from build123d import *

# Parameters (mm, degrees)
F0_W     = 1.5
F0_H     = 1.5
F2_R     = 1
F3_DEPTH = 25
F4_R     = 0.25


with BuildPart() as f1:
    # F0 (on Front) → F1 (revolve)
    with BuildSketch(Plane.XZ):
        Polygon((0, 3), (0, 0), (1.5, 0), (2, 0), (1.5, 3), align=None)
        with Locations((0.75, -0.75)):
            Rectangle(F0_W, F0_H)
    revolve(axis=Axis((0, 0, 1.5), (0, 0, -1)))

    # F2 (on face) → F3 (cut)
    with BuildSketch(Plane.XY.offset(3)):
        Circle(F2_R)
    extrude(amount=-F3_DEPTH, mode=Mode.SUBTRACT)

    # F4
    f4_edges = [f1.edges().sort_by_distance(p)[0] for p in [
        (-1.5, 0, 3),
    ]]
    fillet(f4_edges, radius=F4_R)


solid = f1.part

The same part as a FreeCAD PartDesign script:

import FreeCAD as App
import Part
import Sketcher
from FreeCAD import Vector
Q = App.Units.Quantity


def edges_at(feature, points):
    """Names of the edges that pass closest to the given points."""
    edges = feature.Shape.Edges
    near = lambda p: min(range(len(edges)), key=lambda i: edges[i].distToShape(Part.Vertex(*p))[0])
    return sorted({f"Edge{near(p) + 1}" for p in points})


def add_polygon(sketch, points):
    """Adds a closed chain of lines whose ends are joined by coincident constraints."""
    first, n = sketch.GeometryCount, len(points)
    for a, b in zip(points, points[1:] + points[:1]):
        sketch.addGeometry(Part.LineSegment(App.Vector(*a, 0), App.Vector(*b, 0)), False)
    for i in range(n):
        sketch.addConstraint(Sketcher.Constraint("Coincident", first + i, 2, first + (i + 1) % n, 1))

doc = App.newDocument("Part")
params = doc.addObject("Spreadsheet::Sheet", "Params")
for row, (alias, value) in enumerate([
    ("sketch1_width", "1.5 mm"),
    ("sketch1_width2", "0.5 mm"),
    ("sketch1_height", "4.5 mm"),
    ("revolution_angle", "360 deg"),
    ("sketch2_diameter", "2 mm"),
    ("pocket1_length", "25 mm"),
    ("fillet_radius", "0.25 mm"),
], start=1):
    params.set(f"A{row}", alias)
    params.set(f"B{row}", "=" + value)
    params.setAlias(f"B{row}", alias)

body = doc.addObject("PartDesign::Body", "Body")

# Sketch on XZ plane
sketch1 = body.newObject("Sketcher::SketchObject", "Sketch")
sketch1.AttachmentSupport = (doc.getObject("XZ_Plane"), [""])
sketch1.MapMode = "FlatFace"
add_polygon(sketch1, [(0, 3), (0, -1.5), (1.5, -1.5), (1.5, 0), (2, 0), (1.5, 3)])  # lines 0-5
sketch1.addConstraint([
    Sketcher.Constraint("Vertical", 0),
    Sketcher.Constraint("Horizontal", 1),
    Sketcher.Constraint("Vertical", 2),
    Sketcher.Constraint("Horizontal", 3),
    Sketcher.Constraint("Horizontal", 5),
    Sketcher.Constraint("PointOnObject", 0, 2, -2),
    Sketcher.Constraint("PointOnObject", 2, 2, -1),
    Sketcher.Constraint("Vertical", 2, 2, 4, 2),
    Sketcher.Constraint("Equal", 5, 2),
    Sketcher.Constraint("DistanceX", 1, 1, 1, 2, Q("1.5 mm")),
    Sketcher.Constraint("DistanceX", 3, 1, 3, 2, Q("0.5 mm")),
    Sketcher.Constraint("DistanceY", 0, 2, 0, 1, Q("4.5 mm")),
])
sketch1.setExpression("Constraints[15]", "Params.sketch1_width")
sketch1.setExpression("Constraints[16]", "Params.sketch1_width2")
sketch1.setExpression("Constraints[17]", "Params.sketch1_height")
revolution = body.newObject("PartDesign::Revolution", "Revolution")
revolution.Profile = sketch1
revolution.ReferenceAxis = (sketch1, ["V_Axis"])
revolution.setExpression("Angle", "Params.revolution_angle")

# Sketch on XY plane
sketch2 = body.newObject("Sketcher::SketchObject", "Sketch001")
sketch2.AttachmentSupport = (doc.getObject("XY_Plane"), [""])
sketch2.MapMode = "FlatFace"
sketch2.AttachmentOffset = App.Placement(Vector(0, 0, 3), App.Rotation())
sketch2.addGeometry(Part.Circle(Vector(0, 0, 0), Vector(0, 0, 1), 1), False)
sketch2.addConstraint([
    Sketcher.Constraint("Coincident", 0, 3, -1, 1),
    Sketcher.Constraint("Diameter", 0, Q("2 mm")),
])
sketch2.setExpression("Constraints[1]", "Params.sketch2_diameter")
pocket1 = body.newObject("PartDesign::Pocket", "Pocket")
pocket1.Profile = sketch2
pocket1.setExpression("Length", "Params.pocket1_length")
doc.recompute()

fillet = body.newObject("PartDesign::Fillet", "Fillet")
fillet.Base = (pocket1, edges_at(pocket1, [(-1.5, 0, 3)]))
fillet.setExpression("Radius", "Params.fillet_radius")

doc.recompute()
